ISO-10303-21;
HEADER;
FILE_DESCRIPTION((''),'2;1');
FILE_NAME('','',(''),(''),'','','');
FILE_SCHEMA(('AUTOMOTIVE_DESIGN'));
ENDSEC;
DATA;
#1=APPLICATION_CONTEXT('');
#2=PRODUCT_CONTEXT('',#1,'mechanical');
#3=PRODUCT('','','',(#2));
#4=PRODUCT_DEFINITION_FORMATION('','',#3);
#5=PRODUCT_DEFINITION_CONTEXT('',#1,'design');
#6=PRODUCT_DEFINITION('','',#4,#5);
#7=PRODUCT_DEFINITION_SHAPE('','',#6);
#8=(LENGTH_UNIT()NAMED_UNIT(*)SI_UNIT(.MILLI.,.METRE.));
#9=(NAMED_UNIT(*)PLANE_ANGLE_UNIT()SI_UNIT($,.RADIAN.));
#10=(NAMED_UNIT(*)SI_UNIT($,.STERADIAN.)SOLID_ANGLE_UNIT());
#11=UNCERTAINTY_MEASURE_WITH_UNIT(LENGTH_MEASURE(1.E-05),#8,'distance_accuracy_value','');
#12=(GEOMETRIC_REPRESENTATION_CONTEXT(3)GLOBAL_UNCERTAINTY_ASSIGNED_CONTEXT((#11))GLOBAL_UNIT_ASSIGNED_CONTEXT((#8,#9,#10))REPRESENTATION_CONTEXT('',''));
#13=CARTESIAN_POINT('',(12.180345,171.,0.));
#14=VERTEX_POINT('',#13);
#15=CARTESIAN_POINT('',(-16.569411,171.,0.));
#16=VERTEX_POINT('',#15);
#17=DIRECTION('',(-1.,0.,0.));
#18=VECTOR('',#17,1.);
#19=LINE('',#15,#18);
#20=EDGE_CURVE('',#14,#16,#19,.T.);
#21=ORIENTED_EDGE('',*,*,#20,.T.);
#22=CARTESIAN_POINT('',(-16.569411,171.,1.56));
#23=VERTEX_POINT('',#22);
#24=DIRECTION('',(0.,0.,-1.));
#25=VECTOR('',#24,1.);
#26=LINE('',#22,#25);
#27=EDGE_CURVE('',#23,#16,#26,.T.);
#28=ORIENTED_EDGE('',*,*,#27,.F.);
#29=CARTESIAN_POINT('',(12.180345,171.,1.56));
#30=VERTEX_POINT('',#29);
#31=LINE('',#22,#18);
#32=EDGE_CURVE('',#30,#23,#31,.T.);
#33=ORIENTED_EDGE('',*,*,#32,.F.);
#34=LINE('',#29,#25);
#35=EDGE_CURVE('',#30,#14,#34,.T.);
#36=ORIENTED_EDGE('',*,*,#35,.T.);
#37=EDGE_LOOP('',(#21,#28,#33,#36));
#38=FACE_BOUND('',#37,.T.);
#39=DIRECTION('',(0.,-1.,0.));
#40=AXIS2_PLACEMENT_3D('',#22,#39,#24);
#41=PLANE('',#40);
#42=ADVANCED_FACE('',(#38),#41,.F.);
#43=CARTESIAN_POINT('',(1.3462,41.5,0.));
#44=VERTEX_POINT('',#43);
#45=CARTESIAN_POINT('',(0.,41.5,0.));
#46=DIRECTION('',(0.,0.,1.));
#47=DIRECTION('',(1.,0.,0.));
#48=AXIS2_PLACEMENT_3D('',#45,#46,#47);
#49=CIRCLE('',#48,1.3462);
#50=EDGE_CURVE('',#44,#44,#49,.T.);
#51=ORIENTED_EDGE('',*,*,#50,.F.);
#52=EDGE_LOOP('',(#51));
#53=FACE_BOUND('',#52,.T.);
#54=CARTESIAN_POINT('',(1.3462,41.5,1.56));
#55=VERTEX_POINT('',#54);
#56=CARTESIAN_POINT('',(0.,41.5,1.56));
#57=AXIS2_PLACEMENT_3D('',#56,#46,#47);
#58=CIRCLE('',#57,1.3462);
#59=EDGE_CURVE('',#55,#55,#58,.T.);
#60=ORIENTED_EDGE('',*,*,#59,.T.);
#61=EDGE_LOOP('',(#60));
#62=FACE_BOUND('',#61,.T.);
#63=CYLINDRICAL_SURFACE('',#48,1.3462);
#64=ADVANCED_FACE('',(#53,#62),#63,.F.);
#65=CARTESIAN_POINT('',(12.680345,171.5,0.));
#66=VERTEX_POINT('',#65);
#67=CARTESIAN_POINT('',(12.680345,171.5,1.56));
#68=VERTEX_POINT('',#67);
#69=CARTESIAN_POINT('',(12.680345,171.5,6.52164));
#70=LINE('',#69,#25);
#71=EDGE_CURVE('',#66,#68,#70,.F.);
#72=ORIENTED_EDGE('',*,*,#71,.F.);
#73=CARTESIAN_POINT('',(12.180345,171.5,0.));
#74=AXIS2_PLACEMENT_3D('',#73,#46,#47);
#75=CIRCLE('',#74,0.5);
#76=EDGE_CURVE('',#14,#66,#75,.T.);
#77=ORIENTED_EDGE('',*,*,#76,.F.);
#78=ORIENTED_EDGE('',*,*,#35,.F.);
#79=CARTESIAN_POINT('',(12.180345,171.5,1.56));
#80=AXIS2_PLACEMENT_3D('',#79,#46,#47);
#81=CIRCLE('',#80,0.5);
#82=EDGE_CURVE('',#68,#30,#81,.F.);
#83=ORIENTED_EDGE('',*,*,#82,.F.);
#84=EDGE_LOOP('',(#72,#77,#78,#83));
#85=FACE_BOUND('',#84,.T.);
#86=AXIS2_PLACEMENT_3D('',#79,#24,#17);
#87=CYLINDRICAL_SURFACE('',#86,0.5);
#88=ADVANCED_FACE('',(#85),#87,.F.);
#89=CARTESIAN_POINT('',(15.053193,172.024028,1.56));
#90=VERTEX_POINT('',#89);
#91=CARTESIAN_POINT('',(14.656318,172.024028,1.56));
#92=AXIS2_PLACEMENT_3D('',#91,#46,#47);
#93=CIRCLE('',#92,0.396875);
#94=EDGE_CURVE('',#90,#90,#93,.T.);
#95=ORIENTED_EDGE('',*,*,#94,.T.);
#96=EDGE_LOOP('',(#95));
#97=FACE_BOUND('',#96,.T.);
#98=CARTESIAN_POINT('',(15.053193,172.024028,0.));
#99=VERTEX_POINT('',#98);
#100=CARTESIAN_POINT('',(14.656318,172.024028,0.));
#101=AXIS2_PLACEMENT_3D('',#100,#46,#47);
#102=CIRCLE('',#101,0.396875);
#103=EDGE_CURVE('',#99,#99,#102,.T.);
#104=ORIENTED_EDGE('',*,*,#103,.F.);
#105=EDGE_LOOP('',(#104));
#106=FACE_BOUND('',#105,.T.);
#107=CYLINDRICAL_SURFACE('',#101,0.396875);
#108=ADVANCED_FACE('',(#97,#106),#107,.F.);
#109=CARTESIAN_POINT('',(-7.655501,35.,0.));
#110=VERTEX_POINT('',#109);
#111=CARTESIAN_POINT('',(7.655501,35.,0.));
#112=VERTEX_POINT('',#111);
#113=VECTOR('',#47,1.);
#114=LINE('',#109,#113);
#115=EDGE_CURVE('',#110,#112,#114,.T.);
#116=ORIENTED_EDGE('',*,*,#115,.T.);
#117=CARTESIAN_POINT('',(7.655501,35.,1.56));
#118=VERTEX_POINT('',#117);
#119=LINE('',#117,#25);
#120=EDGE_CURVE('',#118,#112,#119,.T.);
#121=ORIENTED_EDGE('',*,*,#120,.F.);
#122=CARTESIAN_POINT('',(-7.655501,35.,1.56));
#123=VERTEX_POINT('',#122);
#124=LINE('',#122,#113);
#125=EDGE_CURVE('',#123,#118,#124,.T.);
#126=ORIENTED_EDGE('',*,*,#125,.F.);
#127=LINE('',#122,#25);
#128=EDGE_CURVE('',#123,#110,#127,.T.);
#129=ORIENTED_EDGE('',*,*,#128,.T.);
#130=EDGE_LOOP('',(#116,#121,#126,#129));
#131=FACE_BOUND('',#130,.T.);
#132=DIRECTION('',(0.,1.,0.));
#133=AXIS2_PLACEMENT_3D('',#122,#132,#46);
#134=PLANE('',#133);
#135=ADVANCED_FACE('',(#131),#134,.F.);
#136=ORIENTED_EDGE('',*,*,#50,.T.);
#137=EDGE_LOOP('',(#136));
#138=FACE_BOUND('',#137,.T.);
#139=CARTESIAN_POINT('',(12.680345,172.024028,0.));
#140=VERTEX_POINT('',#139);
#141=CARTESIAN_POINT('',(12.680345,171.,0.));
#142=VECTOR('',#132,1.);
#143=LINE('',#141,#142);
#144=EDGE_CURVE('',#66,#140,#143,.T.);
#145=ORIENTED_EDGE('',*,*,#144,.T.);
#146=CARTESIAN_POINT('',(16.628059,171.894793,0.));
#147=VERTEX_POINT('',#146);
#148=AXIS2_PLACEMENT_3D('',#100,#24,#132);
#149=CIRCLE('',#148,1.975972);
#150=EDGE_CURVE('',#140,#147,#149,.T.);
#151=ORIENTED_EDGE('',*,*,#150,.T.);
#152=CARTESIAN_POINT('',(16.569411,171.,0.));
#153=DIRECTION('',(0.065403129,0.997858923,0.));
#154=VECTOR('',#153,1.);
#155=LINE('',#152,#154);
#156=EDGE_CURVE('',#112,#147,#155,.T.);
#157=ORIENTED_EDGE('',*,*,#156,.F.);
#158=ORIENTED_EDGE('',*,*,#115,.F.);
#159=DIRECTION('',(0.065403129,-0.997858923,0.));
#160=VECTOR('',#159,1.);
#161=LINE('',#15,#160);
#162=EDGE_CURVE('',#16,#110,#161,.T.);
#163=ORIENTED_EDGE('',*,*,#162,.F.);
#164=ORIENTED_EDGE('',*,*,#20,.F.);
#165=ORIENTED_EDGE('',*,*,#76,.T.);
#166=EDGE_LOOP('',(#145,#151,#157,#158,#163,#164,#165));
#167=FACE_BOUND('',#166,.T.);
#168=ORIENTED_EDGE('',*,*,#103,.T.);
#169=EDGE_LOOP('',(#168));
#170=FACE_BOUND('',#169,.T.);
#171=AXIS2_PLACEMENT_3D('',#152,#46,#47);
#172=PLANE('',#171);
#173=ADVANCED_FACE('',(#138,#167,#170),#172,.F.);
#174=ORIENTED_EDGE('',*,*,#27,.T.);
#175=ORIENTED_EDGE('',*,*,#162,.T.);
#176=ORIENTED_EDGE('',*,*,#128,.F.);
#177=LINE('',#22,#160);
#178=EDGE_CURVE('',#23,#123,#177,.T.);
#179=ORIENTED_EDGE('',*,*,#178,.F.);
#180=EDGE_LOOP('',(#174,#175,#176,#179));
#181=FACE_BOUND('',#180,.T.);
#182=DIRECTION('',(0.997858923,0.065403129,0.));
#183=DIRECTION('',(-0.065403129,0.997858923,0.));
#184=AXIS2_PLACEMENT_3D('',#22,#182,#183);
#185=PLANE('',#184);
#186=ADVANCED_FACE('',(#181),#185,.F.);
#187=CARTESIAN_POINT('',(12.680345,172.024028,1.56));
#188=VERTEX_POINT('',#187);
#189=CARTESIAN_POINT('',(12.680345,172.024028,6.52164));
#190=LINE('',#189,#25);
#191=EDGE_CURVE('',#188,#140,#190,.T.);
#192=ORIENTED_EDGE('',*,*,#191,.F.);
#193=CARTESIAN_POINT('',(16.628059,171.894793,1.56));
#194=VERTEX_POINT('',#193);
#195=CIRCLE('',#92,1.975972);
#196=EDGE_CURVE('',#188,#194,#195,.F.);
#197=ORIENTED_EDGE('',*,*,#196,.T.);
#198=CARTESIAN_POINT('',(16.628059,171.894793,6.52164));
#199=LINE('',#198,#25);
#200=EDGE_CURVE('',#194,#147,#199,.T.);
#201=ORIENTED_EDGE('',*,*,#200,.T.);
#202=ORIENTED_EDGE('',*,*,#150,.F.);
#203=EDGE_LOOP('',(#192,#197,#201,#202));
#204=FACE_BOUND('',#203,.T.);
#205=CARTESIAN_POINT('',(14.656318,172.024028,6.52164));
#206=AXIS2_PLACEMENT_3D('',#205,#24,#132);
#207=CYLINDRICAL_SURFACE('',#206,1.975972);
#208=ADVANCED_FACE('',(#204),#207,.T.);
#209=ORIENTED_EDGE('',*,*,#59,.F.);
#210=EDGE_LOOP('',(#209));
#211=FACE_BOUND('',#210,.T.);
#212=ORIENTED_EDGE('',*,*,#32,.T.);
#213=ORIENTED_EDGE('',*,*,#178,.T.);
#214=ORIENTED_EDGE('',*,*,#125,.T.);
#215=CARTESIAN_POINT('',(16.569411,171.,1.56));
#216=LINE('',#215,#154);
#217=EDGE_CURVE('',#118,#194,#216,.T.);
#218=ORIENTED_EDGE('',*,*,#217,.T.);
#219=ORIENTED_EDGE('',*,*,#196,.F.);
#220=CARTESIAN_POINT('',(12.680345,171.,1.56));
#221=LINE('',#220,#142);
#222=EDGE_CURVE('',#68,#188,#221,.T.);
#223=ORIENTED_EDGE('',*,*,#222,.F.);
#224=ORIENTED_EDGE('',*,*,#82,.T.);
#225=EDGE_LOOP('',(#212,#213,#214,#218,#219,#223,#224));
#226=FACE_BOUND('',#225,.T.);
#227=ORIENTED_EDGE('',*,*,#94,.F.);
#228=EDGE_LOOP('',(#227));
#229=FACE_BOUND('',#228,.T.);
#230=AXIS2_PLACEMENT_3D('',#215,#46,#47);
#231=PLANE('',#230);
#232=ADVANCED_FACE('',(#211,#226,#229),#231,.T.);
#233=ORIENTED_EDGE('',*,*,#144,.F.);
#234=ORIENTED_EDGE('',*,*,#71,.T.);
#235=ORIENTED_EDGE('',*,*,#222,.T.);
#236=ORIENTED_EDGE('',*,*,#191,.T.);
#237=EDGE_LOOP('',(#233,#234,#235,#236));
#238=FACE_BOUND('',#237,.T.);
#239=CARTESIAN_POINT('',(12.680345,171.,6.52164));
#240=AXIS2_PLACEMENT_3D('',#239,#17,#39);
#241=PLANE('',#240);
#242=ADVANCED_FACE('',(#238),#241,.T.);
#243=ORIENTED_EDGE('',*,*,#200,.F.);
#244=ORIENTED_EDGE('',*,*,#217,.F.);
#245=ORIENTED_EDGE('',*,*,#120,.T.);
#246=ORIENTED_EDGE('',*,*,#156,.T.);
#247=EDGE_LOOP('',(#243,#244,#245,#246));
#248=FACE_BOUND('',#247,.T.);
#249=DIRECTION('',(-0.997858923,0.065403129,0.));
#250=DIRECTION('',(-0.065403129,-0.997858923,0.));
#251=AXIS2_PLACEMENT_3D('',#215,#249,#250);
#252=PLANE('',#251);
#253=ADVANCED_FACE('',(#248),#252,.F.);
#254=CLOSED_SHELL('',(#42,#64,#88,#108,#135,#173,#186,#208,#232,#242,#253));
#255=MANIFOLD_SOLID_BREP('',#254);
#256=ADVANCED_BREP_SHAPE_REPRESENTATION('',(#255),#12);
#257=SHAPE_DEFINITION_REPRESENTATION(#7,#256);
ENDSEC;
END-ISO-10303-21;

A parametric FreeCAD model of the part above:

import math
import FreeCAD as App
import Part
import Sketcher
Q = App.Units.Quantity


def edges_at(feature, points):
    """Names of the edges that pass closest to the given points."""
    edges = feature.Shape.Edges
    near = lambda p: min(range(len(edges)), key=lambda i: edges[i].distToShape(Part.Vertex(*p))[0])
    return sorted({f"Edge{near(p) + 1}" for p in points})


def add_polygon(sketch, points):
    """Adds a closed chain of lines whose ends are joined by coincident constraints."""
    first, n = sketch.GeometryCount, len(points)
    for a, b in zip(points, points[1:] + points[:1]):
        sketch.addGeometry(Part.LineSegment(App.Vector(*a, 0), App.Vector(*b, 0)), False)
    for i in range(n):
        sketch.addConstraint(Sketcher.Constraint("Coincident", first + i, 2, first + (i + 1) % n, 1))

doc = App.newDocument("Part")
params = doc.addObject("Spreadsheet::Sheet", "Params")
for row, (alias, value) in enumerate([
    ("pad1_length", "1.56 mm"),
    ("sketch2_diameter", "0.106 in"),
    ("pad2_length", "1.56 mm"),
    ("fillet_radius", "0.5 mm"),
    ("sketch4_diameter", "0.03125 in"),
], start=1):
    params.set(f"A{row}", alias)
    params.set(f"B{row}", "=" + value)
    params.setAlias(f"B{row}", alias)

body = doc.addObject("PartDesign::Body", "Body")

sketch1 = body.newObject("Sketcher::SketchObject", "Sketch")
sketch1.AttachmentSupport = (doc.getObject("XY_Plane"), [""])
sketch1.MapMode = "FlatFace"
add_polygon(sketch1, [(-7.655501, 35), (7.655501, 35), (16.569411, 171), (-16.569411, 171)])
sketch1.addConstraint([
    Sketcher.Constraint("Horizontal", 0),
    Sketcher.Constraint("Horizontal", 2),
    Sketcher.Constraint("Equal", 1, 3),
    Sketcher.Constraint("Angle", 1, Q("86.25 deg")),
    Sketcher.Constraint("DistanceX", 0, 1, 0, 2, Q("15.311001 mm")),
    Sketcher.Constraint("DistanceX", -1, 1, 0, 2, Q("7.655501 mm")),
    Sketcher.Constraint("DistanceY", -1, 1, 0, 2, Q("35 mm")),
    Sketcher.Constraint("DistanceY", -1, 1, 1, 2, Q("171 mm")),
])
pad1 = body.newObject("PartDesign::Pad", "Pad")
pad1.Profile = sketch1
pad1.setExpression("Length", "Params.pad1_length")

sketch2 = body.newObject("Sketcher::SketchObject", "Sketch001")
sketch2.AttachmentSupport = (doc.getObject("XY_Plane"), [""])
sketch2.MapMode = "FlatFace"
sketch2.AttachmentOffset = App.Placement(App.Vector(0, 0, 1.56), App.Rotation())
sketch2.addGeometry(Part.Circle(App.Vector(0, 41.5, 0), App.Vector(0, 0, 1), 1.3462), False)
sketch2.addConstraint([
    Sketcher.Constraint("PointOnObject", 0, 3, -2),
    Sketcher.Constraint("Diameter", 0, Q("0.106 in")),
    Sketcher.Constraint("DistanceY", -1, 1, 0, 3, Q("41.5 mm")),
])
sketch2.setExpression("Constraints[1]", "Params.sketch2_diameter")
pocket1 = body.newObject("PartDesign::Pocket", "Pocket")
pocket1.Profile = sketch2
pocket1.Type = "ThroughAll"

sketch3 = body.newObject("Sketcher::SketchObject", "Sketch002")
sketch3.AttachmentSupport = (doc.getObject("XY_Plane"), [""])
sketch3.MapMode = "FlatFace"
sketch3.addGeometry([
    Part.LineSegment(App.Vector(16.628059, 171.894793, 0), App.Vector(16.569411, 171, 0)),
    Part.LineSegment(App.Vector(16.569411, 171, 0), App.Vector(12.680345, 171, 0)),
    Part.LineSegment(App.Vector(12.680345, 171, 0), App.Vector(12.680345, 172.024028, 0)),
    Part.ArcOfCircle(Part.Circle(App.Vector(14.656318, 172.024028, 0), App.Vector(0, 0, 1), 1.975972), math.radians(-3.75), math.radians(180)),
], False)
sketch3.addConstraint([
    Sketcher.Constraint("Coincident", 0, 2, 1, 1),
    Sketcher.Constraint("Coincident", 1, 2, 2, 1),
    Sketcher.Constraint("Tangent", 2, 2, 3, 2),
    Sketcher.Constraint("Tangent", 3, 1, 0, 1),
    Sketcher.Constraint("Horizontal", 1),
    Sketcher.Constraint("Vertical", 2),
    Sketcher.Constraint("Angle", 0, Q("-93.75 deg")),
    Sketcher.Constraint("Radius", 3, Q("1.975972 mm")),
    Sketcher.Constraint("DistanceY", -1, 1, 0, 2, Q("171 mm")),
    Sketcher.Constraint("DistanceX", 1, 2, 1, 1, Q("3.889066 mm")),
    Sketcher.Constraint("DistanceX", -1, 1, 0, 2, Q("16.569411 mm")),
])
pad2 = body.newObject("PartDesign::Pad", "Pad001")
pad2.Profile = sketch3
pad2.setExpression("Length", "Params.pad2_length")
doc.recompute()

fillet = body.newObject("PartDesign::Fillet", "Fillet")
fillet.Base = (pad2, edges_at(pad2, [(12.68, 171, 0.78)]))
fillet.setExpression("Radius", "Params.fillet_radius")

sketch4 = body.newObject("Sketcher::SketchObject", "Sketch003")
sketch4.AttachmentSupport = (doc.getObject("XY_Plane"), [""])
sketch4.MapMode = "FlatFace"
sketch4.AttachmentOffset = App.Placement(App.Vector(0, 0, 1.56), App.Rotation())
sketch4.addGeometry(Part.Circle(App.Vector(14.656318, 172.024028, 0), App.Vector(0, 0, 1), 0.396875), False)
sketch4.addConstraint([
    Sketcher.Constraint("Diameter", 0, Q("0.03125 in")),
    Sketcher.Constraint("DistanceX", -1, 1, 0, 3, Q("14.656318 mm")),
    Sketcher.Constraint("DistanceY", -1, 1, 0, 3, Q("172.024028 mm")),
])
sketch4.setExpression("Constraints[0]", "Params.sketch4_diameter")
pocket2 = body.newObject("PartDesign::Pocket", "Pocket001")
pocket2.Profile = sketch4
pocket2.Type = "ThroughAll"

doc.recompute()
